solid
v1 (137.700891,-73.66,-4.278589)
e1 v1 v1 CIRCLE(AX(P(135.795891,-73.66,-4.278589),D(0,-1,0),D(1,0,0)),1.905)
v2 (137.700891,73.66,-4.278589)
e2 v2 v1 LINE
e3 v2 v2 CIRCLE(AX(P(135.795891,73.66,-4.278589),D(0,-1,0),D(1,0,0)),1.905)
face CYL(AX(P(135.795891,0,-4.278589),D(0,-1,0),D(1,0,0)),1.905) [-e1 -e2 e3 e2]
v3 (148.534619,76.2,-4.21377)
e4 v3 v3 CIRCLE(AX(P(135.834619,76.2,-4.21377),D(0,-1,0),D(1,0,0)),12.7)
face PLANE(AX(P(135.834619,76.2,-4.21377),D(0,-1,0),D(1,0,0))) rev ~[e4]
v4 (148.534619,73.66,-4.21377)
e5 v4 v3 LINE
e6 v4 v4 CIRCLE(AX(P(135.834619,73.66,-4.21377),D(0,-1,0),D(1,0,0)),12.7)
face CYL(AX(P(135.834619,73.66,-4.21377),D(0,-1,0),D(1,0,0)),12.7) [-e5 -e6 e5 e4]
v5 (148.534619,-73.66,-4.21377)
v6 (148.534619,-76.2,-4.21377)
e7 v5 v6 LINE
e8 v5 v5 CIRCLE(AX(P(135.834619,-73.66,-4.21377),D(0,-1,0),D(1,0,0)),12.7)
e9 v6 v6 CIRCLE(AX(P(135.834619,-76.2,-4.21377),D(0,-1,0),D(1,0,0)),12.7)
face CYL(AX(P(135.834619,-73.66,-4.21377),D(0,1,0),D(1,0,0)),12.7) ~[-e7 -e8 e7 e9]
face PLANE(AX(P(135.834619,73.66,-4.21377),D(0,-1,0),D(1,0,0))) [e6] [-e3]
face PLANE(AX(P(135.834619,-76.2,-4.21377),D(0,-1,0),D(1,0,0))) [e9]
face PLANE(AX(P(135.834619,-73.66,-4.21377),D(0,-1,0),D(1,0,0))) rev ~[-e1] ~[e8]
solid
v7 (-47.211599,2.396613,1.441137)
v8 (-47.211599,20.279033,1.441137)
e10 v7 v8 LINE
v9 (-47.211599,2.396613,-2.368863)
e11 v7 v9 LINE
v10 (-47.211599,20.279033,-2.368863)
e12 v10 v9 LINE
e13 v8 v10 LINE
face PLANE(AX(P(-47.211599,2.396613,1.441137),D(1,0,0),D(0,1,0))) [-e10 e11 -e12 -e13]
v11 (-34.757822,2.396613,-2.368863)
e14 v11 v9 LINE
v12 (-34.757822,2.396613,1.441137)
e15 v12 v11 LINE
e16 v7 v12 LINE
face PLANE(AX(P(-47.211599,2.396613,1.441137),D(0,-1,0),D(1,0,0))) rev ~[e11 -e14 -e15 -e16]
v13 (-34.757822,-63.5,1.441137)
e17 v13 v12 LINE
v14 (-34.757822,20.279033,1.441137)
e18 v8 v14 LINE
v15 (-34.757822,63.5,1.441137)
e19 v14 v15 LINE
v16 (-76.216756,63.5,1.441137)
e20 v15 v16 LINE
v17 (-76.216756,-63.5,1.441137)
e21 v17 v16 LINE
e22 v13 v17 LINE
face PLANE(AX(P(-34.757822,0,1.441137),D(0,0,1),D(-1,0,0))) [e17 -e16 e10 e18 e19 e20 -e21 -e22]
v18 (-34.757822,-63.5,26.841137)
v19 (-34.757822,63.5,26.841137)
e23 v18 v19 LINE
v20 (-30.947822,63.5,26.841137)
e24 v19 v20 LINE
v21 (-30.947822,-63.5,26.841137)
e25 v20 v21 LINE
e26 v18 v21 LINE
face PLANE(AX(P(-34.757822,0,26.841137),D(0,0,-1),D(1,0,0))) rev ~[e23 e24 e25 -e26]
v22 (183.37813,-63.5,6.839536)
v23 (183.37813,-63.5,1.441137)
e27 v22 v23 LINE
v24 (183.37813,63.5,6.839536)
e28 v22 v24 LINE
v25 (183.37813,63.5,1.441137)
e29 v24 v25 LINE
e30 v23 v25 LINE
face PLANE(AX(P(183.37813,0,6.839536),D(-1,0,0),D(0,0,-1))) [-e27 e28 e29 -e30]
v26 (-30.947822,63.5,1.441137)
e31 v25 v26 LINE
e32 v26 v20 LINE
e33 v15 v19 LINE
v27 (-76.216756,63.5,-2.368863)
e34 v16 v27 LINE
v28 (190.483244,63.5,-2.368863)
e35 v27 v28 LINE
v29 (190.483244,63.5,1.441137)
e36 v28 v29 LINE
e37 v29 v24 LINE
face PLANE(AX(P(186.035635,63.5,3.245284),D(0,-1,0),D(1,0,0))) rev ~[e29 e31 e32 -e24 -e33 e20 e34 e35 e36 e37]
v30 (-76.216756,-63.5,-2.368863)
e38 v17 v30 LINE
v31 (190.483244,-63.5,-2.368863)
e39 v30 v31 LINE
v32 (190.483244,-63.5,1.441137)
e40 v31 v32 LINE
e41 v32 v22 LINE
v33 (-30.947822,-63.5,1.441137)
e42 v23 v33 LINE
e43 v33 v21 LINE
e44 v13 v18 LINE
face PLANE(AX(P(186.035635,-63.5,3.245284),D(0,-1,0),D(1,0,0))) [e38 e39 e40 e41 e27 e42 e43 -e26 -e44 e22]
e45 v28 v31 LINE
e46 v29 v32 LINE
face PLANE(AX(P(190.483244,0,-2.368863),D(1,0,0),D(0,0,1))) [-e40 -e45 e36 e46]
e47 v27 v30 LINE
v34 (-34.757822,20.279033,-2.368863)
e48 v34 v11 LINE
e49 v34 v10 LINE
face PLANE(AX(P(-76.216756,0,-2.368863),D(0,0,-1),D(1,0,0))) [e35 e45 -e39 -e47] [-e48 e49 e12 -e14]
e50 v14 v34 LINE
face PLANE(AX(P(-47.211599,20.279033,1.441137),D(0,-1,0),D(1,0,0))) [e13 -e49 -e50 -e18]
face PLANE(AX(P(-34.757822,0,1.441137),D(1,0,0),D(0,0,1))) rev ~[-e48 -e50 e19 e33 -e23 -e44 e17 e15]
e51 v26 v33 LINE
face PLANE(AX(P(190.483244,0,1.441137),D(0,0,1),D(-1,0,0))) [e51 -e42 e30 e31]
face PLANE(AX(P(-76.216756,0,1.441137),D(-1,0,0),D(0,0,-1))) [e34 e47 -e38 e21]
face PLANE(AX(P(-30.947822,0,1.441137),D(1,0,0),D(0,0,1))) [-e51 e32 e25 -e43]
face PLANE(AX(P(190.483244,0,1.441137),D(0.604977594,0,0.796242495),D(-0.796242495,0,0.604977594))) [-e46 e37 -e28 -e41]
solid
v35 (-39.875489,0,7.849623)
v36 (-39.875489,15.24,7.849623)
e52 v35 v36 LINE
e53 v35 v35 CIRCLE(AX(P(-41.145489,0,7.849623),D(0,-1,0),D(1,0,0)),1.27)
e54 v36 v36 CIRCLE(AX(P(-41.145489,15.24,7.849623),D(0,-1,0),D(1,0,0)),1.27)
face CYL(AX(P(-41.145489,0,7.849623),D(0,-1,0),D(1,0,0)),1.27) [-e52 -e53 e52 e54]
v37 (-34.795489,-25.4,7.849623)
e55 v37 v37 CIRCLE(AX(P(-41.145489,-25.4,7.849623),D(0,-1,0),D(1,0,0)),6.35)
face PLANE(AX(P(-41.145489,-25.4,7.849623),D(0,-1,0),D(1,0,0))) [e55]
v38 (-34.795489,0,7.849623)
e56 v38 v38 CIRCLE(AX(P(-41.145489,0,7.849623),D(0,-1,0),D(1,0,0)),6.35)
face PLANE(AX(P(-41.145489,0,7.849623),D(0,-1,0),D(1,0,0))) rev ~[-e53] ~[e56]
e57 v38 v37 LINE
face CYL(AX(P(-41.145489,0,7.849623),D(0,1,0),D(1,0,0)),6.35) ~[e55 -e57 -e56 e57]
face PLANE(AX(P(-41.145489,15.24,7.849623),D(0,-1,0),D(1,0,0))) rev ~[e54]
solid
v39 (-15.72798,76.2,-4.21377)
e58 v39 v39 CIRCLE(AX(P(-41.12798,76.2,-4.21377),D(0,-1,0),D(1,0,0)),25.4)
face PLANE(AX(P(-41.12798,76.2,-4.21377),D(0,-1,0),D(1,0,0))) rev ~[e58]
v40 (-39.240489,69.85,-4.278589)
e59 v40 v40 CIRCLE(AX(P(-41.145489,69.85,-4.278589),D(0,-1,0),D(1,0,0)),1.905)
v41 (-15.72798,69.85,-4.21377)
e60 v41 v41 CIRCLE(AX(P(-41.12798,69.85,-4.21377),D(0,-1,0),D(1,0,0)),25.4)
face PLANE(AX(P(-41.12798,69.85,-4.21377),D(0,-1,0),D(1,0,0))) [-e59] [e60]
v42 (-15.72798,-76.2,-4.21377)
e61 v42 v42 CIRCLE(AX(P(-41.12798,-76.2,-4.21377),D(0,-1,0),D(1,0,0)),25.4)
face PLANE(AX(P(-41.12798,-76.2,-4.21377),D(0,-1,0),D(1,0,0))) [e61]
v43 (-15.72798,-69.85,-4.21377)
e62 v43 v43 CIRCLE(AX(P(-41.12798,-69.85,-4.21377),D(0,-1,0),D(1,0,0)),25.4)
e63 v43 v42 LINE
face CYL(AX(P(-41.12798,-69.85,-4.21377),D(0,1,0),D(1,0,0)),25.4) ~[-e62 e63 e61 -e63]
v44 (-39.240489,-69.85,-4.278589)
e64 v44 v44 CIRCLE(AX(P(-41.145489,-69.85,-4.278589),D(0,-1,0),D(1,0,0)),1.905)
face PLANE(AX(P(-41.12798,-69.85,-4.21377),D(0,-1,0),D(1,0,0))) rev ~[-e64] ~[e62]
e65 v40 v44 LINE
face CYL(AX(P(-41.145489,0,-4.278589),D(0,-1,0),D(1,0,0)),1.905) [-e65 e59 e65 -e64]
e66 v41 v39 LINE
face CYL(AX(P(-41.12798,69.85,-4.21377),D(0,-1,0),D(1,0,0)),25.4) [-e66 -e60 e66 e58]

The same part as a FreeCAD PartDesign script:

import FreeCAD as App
import Part
import Sketcher
from FreeCAD import Vector
Q = App.Units.Quantity

doc = App.newDocument("Part")
body = doc.addObject("PartDesign::Body", "Body")

sketch1 = body.newObject("Sketcher::SketchObject", "Sketch")
sketch1.AttachmentSupport = (doc.getObject("XZ_Plane"), [""])
sketch1.MapMode = "FlatFace"
sketch1.addGeometry(Part.LineSegment(Vector(-76.2, 1.4, 0), Vector(-76.2, -2.4, 0)), False)
sketch1.addGeometry(Part.LineSegment(Vector(-76.2, -2.4, 0), Vector(190.5, -2.4, 0)), False)
sketch1.addGeometry(Part.LineSegment(Vector(190.5, -2.4, 0), Vector(190.5, 1.4, 0)), False)
sketch1.addGeometry(Part.LineSegment(Vector(190.5, 1.4, 0), Vector(-30.9, 1.4, 0)), False)
sketch1.addGeometry(Part.LineSegment(Vector(-30.9, 1.4, 0), Vector(-30.9, 26.8, 0)), False)
sketch1.addGeometry(Part.LineSegment(Vector(-30.9, 26.8, 0), Vector(-34.8, 26.8, 0)), False)
sketch1.addGeometry(Part.LineSegment(Vector(-34.8, 26.8, 0), Vector(-34.8, 1.4, 0)), False)
sketch1.addGeometry(Part.LineSegment(Vector(-34.8, 1.4, 0), Vector(-76.2, 1.4, 0)), False)
sketch1.addConstraint(Sketcher.Constraint("Coincident", 0, 2, 1, 1))
sketch1.addConstraint(Sketcher.Constraint("Coincident", 1, 2, 2, 1))
sketch1.addConstraint(Sketcher.Constraint("Coincident", 2, 2, 3, 1))
sketch1.addConstraint(Sketcher.Constraint("Coincident", 3, 2, 4, 1))
sketch1.addConstraint(Sketcher.Constraint("Coincident", 4, 2, 5, 1))
sketch1.addConstraint(Sketcher.Constraint("Coincident", 5, 2, 6, 1))
sketch1.addConstraint(Sketcher.Constraint("Coincident", 6, 2, 7, 1))
sketch1.addConstraint(Sketcher.Constraint("Coincident", 7, 2, 0, 1))
sketch1.addConstraint(Sketcher.Constraint("Vertical", 0))
sketch1.addConstraint(Sketcher.Constraint("Horizontal", 1))
sketch1.addConstraint(Sketcher.Constraint("Vertical", 2))
sketch1.addConstraint(Sketcher.Constraint("Horizontal", 3))
sketch1.addConstraint(Sketcher.Constraint("Vertical", 4))
sketch1.addConstraint(Sketcher.Constraint("Horizontal", 5))
sketch1.addConstraint(Sketcher.Constraint("Vertical", 6))
sketch1.addConstraint(Sketcher.Constraint("Horizontal", 7))
sketch1.addConstraint(Sketcher.Constraint("Horizontal", 3, 2, 6, 2))
sketch1.addConstraint(Sketcher.Constraint("Equal", 5, 0))
sketch1.addConstraint(Sketcher.Constraint("DistanceY", 4, 1, 4, 2, Q("1 in")))
sketch1.addConstraint(Sketcher.Constraint("DistanceX", 1, 1, 1, 2, Q("10.5 in")))
sketch1.addConstraint(Sketcher.Constraint("DistanceX", 5, 2, 5, 1, Q("0.15 in")))
sketch1.addConstraint(Sketcher.Constraint("DistanceX", 3, 2, 3, 1, Q("221.431067 mm")))
sketch1.addConstraint(Sketcher.Constraint("DistanceX", 0, 2, -1, 1, Q("76.216756 mm")))
sketch1.addConstraint(Sketcher.Constraint("DistanceY", 0, 2, -1, 1, Q("2.368863 mm")))
pad1 = body.newObject("PartDesign::Pad", "Pad")
pad1.Profile = sketch1
pad1.Length = Q("5 in")
pad1.Midplane = True

sketch2 = body.newObject("Sketcher::SketchObject", "Sketch001")
sketch2.AttachmentSupport = (doc.getObject("XZ_Plane"), [""])
sketch2.MapMode = "FlatFace"
sketch2.addGeometry(Part.LineSegment(Vector(183, 1, 0), Vector(190, 1, 0)), False)
sketch2.addGeometry(Part.LineSegment(Vector(190, 1, 0), Vector(183, 7, 0)), False)
sketch2.addGeometry(Part.LineSegment(Vector(183, 7, 0), Vector(183, 1, 0)), False)
sketch2.addConstraint(Sketcher.Constraint("Coincident", 0, 2, 1, 1))
sketch2.addConstraint(Sketcher.Constraint("Coincident", 1, 2, 2, 1))
sketch2.addConstraint(Sketcher.Constraint("Coincident", 2, 2, 0, 1))
sketch2.addConstraint(Sketcher.Constraint("Horizontal", 0))
sketch2.addConstraint(Sketcher.Constraint("Vertical", 2))
sketch2.addConstraint(Sketcher.Constraint("DistanceY", 2, 2, 2, 1, Q("5.398399 mm")))
sketch2.addConstraint(Sketcher.Constraint("DistanceX", 0, 1, 0, 2, Q("7.105114 mm")))
sketch2.addConstraint(Sketcher.Constraint("DistanceX", -1, 1, 1, 2, Q("183.37813 mm")))
sketch2.addConstraint(Sketcher.Constraint("DistanceY", -1, 1, 0, 2, Q("1.441137 mm")))
pad2 = body.newObject("PartDesign::Pad", "Pad001")
pad2.Profile = sketch2
pad2.Length = Q("5 in")
pad2.Midplane = True

sketch3 = body.newObject("Sketcher::SketchObject", "Sketch002")
sketch3.AttachmentSupport = (doc.getObject("XY_Plane"), [""])
sketch3.MapMode = "FlatFace"
sketch3.AttachmentOffset = App.Placement(Vector(0, 0, 1.441137), App.Rotation())
sketch3.addGeometry(Part.LineSegment(Vector(-47, 20, 0), Vector(-47, 2, 0)), False)
sketch3.addGeometry(Part.LineSegment(Vector(-47, 2, 0), Vector(-35, 2, 0)), False)
sketch3.addGeometry(Part.LineSegment(Vector(-35, 2, 0), Vector(-35, 20, 0)), False)
sketch3.addGeometry(Part.LineSegment(Vector(-35, 20, 0), Vector(-47, 20, 0)), False)
sketch3.addConstraint(Sketcher.Constraint("Coincident", 0, 2, 1, 1))
sketch3.addConstraint(Sketcher.Constraint("Coincident", 1, 2, 2, 1))
sketch3.addConstraint(Sketcher.Constraint("Coincident", 2, 2, 3, 1))
sketch3.addConstraint(Sketcher.Constraint("Coincident", 3, 2, 0, 1))
sketch3.addConstraint(Sketcher.Constraint("Vertical", 0))
sketch3.addConstraint(Sketcher.Constraint("Horizontal", 1))
sketch3.addConstraint(Sketcher.Constraint("Vertical", 2))
sketch3.addConstraint(Sketcher.Constraint("Horizontal", 3))
sketch3.addConstraint(Sketcher.Constraint("DistanceY", 0, 2, 0, 1, Q("17.88242 mm")))
sketch3.addConstraint(Sketcher.Constraint("DistanceX", 0, 2, -1, 1, Q("47.211599 mm")))
sketch3.addConstraint(Sketcher.Constraint("DistanceX", 1, 1, 1, 2, Q("12.453776 mm")))
sketch3.addConstraint(Sketcher.Constraint("DistanceY", -1, 1, 0, 2, Q("2.396613 mm")))
pocket1 = body.newObject("PartDesign::Pocket", "Pocket")
pocket1.Profile = sketch3
pocket1.Length = Q("1 in")
body2 = doc.addObject("PartDesign::Body", "Body001")

sketch4 = body2.newObject("Sketcher::SketchObject", "Sketch003")
sketch4.AttachmentSupport = (doc.getObject("XZ_Plane001"), [""])
sketch4.MapMode = "FlatFace"
sketch4.addGeometry(Part.Circle(Vector(-41.1, -4.3, 0), Vector(0, 0, 1), 1.9), False)
sketch4.addConstraint(Sketcher.Constraint("Diameter", 0, Q("0.15 in")))
sketch4.addConstraint(Sketcher.Constraint("DistanceX", 0, 3, -1, 1, Q("41.145489 mm")))
sketch4.addConstraint(Sketcher.Constraint("DistanceY", 0, 3, -1, 1, Q("4.278589 mm")))
pad3 = body2.newObject("PartDesign::Pad", "Pad002")
pad3.Profile = sketch4
pad3.Length = Q("6 in")
pad3.Midplane = True

sketch5 = body2.newObject("Sketcher::SketchObject", "Sketch004")
sketch5.AttachmentSupport = (doc.getObject("XZ_Plane001"), [""])
sketch5.MapMode = "FlatFace"
sketch5.AttachmentOffset = App.Placement(Vector(0, 0, 2.75 * 25.4), App.Rotation())
sketch5.addGeometry(Part.Circle(Vector(-41, -4, 0), Vector(0, 0, 1), 25), False)
sketch5.addConstraint(Sketcher.Constraint("Diameter", 0, Q("2 in")))
sketch5.addConstraint(Sketcher.Constraint("DistanceX", 0, 3, -1, 1, Q("41.12798 mm")))
sketch5.addConstraint(Sketcher.Constraint("DistanceY", 0, 3, -1, 1, Q("4.21377 mm")))
pad4 = body2.newObject("PartDesign::Pad", "Pad003")
pad4.Profile = sketch5
pad4.Length = Q("0.25 in")

sketch6 = body2.newObject("Sketcher::SketchObject", "Sketch005")
sketch6.AttachmentSupport = (doc.getObject("XZ_Plane001"), [""])
sketch6.MapMode = "FlatFace"
sketch6.AttachmentOffset = App.Placement(Vector(0, 0, -2.75 * 25.4), App.Rotation())
sketch6.addGeometry(Part.Circle(Vector(-41, -4, 0), Vector(0, 0, 1), 25), False)
sketch6.addConstraint(Sketcher.Constraint("Diameter", 0, Q("2 in")))
sketch6.addConstraint(Sketcher.Constraint("DistanceX", 0, 3, -1, 1, Q("41.12798 mm")))
sketch6.addConstraint(Sketcher.Constraint("DistanceY", 0, 3, -1, 1, Q("4.21377 mm")))
pad5 = body2.newObject("PartDesign::Pad", "Pad004")
pad5.Profile = sketch6
pad5.Length = Q("0.25 in")
pad5.Reversed = True
body3 = doc.addObject("PartDesign::Body", "Body002")

sketch7 = body3.newObject("Sketcher::SketchObject", "Sketch006")
sketch7.AttachmentSupport = (doc.getObject("XZ_Plane002"), [""])
sketch7.MapMode = "FlatFace"
sketch7.addGeometry(Part.Circle(Vector(135.8, -4.3, 0), Vector(0, 0, 1), 1.9), False)
sketch7.addConstraint(Sketcher.Constraint("Diameter", 0, Q("0.15 in")))
sketch7.addConstraint(Sketcher.Constraint("DistanceX", -1, 1, 0, 3, Q("135.795891 mm")))
sketch7.addConstraint(Sketcher.Constraint("DistanceY", 0, 3, -1, 1, Q("4.278589 mm")))
pad6 = body3.newObject("PartDesign::Pad", "Pad005")
pad6.Profile = sketch7
pad6.Length = Q("6 in")
pad6.Midplane = True

sketch8 = body3.newObject("Sketcher::SketchObject", "Sketch007")
sketch8.AttachmentSupport = (doc.getObject("XZ_Plane002"), [""])
sketch8.MapMode = "FlatFace"
sketch8.AttachmentOffset = App.Placement(Vector(0, 0, 2.9 * 25.4), App.Rotation())
sketch8.addGeometry(Part.Circle(Vector(136, -4, 0), Vector(0, 0, 1), 13), False)
sketch8.addConstraint(Sketcher.Constraint("Diameter", 0, Q("1 in")))
sketch8.addConstraint(Sketcher.Constraint("DistanceX", -1, 1, 0, 3, Q("135.834619 mm")))
sketch8.addConstraint(Sketcher.Constraint("DistanceY", 0, 3, -1, 1, Q("4.21377 mm")))
pad7 = body3.newObject("PartDesign::Pad", "Pad006")
pad7.Profile = sketch8
pad7.Length = Q("0.1 in")

sketch9 = body3.newObject("Sketcher::SketchObject", "Sketch008")
sketch9.AttachmentSupport = (doc.getObject("XZ_Plane002"), [""])
sketch9.MapMode = "FlatFace"
sketch9.AttachmentOffset = App.Placement(Vector(0, 0, -2.9 * 25.4), App.Rotation())
sketch9.addGeometry(Part.Circle(Vector(136, -4, 0), Vector(0, 0, 1), 13), False)
sketch9.addConstraint(Sketcher.Constraint("Diameter", 0, Q("1 in")))
sketch9.addConstraint(Sketcher.Constraint("DistanceX", -1, 1, 0, 3, Q("135.834619 mm")))
sketch9.addConstraint(Sketcher.Constraint("DistanceY", 0, 3, -1, 1, Q("4.21377 mm")))
pad8 = body3.newObject("PartDesign::Pad", "Pad007")
pad8.Profile = sketch9
pad8.Length = Q("0.1 in")
pad8.Reversed = True
body4 = doc.addObject("PartDesign::Body", "Body003")

sketch10 = body4.newObject("Sketcher::SketchObject", "Sketch009")
sketch10.AttachmentSupport = (doc.getObject("XZ_Plane003"), [""])
sketch10.MapMode = "FlatFace"
sketch10.addGeometry(Part.Circle(Vector(-41.1, 7.8, 0), Vector(0, 0, 1), 1.3), False)
sketch10.addConstraint(Sketcher.Constraint("Diameter", 0, Q("0.1 in")))
sketch10.addConstraint(Sketcher.Constraint("DistanceX", 0, 3, -1, 1, Q("41.145489 mm")))
sketch10.addConstraint(Sketcher.Constraint("DistanceY", -1, 1, 0, 3, Q("7.849623 mm")))
pad9 = body4.newObject("PartDesign::Pad", "Pad008")
pad9.Profile = sketch10
pad9.Length = Q("0.6 in")
pad9.Reversed = True

sketch11 = body4.newObject("Sketcher::SketchObject", "Sketch010")
sketch11.AttachmentSupport = (doc.getObject("XZ_Plane003"), [""])
sketch11.MapMode = "FlatFace"
sketch11.addGeometry(Part.Circle(Vector(-41, 8, 0), Vector(0, 0, 1), 6), False)
sketch11.addConstraint(Sketcher.Constraint("Diameter", 0, Q("0.5 in")))
sketch11.addConstraint(Sketcher.Constraint("DistanceX", 0, 3, -1, 1, Q("41.145489 mm")))
sketch11.addConstraint(Sketcher.Constraint("DistanceY", -1, 1, 0, 3, Q("7.849623 mm")))
pad10 = body4.newObject("PartDesign::Pad", "Pad009")
pad10.Profile = sketch11
pad10.Length = Q("1 in")

doc.recompute()
